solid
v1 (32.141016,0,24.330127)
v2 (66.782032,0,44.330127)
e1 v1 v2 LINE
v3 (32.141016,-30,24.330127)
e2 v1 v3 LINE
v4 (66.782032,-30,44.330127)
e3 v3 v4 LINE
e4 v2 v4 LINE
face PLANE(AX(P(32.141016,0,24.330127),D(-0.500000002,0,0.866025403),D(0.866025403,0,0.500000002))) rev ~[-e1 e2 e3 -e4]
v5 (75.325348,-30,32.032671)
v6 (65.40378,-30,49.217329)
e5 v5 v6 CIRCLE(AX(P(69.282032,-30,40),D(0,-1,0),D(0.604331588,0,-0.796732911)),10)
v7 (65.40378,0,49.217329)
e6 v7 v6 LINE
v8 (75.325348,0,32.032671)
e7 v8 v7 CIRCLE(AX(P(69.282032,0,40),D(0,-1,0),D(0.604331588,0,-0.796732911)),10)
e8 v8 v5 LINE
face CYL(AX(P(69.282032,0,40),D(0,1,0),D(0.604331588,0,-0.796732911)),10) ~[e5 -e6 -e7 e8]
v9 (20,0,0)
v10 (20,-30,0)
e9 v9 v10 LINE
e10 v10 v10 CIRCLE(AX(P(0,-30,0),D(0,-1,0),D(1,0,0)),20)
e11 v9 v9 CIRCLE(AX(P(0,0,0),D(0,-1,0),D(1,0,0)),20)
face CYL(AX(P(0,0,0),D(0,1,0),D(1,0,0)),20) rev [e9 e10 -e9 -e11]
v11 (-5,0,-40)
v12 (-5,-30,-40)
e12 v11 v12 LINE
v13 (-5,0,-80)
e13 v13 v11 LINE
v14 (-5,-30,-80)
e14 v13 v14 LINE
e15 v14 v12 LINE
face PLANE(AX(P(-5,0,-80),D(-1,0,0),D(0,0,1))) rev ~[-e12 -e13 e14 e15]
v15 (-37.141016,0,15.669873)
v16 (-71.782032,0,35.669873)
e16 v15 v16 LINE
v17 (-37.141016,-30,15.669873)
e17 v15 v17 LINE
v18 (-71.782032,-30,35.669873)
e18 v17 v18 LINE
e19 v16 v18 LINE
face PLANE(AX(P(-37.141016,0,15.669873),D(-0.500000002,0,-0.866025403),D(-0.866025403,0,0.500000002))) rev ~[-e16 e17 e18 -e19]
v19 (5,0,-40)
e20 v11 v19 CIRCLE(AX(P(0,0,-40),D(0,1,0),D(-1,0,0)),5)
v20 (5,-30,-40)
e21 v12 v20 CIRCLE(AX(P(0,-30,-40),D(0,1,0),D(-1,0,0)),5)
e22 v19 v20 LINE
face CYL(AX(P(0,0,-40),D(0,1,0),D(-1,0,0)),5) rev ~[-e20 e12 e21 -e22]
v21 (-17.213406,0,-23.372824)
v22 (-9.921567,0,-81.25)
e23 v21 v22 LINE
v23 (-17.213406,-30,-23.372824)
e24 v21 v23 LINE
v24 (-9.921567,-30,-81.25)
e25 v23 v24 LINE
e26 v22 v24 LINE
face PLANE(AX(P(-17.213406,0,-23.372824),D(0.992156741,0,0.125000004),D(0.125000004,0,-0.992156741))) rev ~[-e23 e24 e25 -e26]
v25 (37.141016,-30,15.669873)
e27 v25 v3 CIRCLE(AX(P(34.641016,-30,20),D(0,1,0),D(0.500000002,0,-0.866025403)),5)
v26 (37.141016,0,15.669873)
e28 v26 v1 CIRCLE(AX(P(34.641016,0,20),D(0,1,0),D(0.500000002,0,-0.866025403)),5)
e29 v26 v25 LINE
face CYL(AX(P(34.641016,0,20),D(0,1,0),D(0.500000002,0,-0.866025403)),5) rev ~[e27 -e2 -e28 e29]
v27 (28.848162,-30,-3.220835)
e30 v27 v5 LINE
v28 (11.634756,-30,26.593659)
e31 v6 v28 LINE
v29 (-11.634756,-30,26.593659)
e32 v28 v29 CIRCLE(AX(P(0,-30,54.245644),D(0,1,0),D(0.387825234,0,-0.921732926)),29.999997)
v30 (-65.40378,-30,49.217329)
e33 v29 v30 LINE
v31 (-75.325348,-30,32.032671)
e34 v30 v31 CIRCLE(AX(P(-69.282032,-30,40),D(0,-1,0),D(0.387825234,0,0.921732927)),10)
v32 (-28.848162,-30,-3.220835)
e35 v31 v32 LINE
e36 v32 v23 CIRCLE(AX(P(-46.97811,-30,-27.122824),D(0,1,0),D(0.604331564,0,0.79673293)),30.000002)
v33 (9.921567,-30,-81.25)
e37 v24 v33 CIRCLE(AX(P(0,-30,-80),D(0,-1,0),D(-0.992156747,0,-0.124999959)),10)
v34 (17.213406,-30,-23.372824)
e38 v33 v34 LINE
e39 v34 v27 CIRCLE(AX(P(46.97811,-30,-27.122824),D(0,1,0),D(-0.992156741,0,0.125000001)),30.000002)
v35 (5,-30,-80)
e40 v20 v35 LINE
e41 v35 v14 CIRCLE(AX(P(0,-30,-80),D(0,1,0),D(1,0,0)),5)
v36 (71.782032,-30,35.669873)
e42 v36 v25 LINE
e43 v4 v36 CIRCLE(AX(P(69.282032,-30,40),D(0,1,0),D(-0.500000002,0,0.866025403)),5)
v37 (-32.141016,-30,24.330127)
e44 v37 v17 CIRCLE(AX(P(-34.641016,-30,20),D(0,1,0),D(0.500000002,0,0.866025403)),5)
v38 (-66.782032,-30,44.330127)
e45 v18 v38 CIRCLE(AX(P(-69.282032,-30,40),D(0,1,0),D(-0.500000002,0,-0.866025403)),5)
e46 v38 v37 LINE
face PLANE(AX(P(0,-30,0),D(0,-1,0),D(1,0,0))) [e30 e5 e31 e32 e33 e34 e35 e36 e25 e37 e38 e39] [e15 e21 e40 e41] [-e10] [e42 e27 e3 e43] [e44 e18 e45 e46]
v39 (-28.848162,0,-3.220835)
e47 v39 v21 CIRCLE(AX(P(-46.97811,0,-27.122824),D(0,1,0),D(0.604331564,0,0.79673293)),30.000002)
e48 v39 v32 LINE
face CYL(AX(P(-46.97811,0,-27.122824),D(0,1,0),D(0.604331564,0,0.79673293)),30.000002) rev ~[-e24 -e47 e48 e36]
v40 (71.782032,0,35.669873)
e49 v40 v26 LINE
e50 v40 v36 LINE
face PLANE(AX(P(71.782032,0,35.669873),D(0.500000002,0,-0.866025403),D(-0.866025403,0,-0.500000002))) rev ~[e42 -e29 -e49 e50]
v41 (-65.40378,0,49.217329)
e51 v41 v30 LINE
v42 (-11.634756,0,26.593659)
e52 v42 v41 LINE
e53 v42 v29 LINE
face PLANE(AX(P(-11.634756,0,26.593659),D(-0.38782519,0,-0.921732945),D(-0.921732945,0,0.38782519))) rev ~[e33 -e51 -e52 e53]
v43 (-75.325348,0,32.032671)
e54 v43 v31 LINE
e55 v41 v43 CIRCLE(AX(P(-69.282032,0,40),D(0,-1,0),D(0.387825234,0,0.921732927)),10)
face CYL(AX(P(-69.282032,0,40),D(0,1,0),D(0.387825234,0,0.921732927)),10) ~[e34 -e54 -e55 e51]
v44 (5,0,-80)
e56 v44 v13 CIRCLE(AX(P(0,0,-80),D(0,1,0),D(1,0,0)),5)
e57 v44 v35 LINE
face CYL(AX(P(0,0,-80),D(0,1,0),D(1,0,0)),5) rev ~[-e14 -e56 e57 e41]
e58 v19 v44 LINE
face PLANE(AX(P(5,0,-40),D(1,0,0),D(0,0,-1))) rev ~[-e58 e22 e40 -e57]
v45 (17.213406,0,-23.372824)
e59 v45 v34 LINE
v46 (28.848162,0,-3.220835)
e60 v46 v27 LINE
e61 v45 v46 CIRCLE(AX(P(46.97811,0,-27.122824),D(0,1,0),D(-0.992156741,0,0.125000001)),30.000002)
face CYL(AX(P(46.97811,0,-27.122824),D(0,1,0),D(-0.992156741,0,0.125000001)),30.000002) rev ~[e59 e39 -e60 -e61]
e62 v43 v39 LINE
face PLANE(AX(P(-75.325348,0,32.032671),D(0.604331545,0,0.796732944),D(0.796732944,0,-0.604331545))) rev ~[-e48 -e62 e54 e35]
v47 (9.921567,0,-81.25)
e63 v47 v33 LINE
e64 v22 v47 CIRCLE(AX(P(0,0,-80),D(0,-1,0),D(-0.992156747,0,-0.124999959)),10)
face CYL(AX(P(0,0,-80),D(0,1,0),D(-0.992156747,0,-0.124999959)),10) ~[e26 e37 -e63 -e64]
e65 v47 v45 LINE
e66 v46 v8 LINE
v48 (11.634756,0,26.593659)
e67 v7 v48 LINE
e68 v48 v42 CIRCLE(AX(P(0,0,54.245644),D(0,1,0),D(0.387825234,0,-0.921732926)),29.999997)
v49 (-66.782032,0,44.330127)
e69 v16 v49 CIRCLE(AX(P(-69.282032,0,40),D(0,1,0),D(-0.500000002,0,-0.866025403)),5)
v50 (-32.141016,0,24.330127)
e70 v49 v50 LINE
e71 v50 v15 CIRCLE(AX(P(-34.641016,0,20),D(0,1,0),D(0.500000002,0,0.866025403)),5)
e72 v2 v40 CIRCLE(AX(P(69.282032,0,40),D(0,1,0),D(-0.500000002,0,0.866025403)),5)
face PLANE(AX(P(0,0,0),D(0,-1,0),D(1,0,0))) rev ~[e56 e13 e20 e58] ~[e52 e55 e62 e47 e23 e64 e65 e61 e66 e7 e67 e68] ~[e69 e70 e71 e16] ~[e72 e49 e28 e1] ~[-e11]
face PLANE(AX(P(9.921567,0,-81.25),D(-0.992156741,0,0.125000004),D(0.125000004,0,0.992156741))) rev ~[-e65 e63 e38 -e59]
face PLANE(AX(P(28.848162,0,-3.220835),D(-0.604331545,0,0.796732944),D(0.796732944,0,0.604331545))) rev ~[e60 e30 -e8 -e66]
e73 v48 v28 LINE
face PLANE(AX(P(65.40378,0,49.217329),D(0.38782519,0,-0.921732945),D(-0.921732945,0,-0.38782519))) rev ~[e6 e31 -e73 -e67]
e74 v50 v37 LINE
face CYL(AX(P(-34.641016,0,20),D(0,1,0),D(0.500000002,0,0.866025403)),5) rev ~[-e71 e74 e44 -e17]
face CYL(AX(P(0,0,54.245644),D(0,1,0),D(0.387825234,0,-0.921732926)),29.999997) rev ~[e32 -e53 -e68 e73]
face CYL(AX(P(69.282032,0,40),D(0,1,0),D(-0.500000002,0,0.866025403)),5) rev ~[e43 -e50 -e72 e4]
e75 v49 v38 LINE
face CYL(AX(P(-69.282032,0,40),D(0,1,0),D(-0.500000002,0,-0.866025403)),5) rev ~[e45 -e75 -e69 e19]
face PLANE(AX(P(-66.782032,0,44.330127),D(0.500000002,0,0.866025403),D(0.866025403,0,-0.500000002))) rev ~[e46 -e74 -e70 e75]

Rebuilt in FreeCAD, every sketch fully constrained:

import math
import FreeCAD as App
import Part
import Sketcher
Q = App.Units.Quantity

doc = App.newDocument("Part")
params = doc.addObject("Spreadsheet::Sheet", "Params")
for row, (alias, value) in enumerate([
    ("sketch1_diameter", "40 mm"),
    ("sketch1_radius", "10 mm"),
    ("sketch1_radius2", "30.000002 mm"),
    ("sketch1_radius3", "5 mm"),
    ("sketch1_height", "40 mm"),
    ("pad1_length", "30 mm"),
], start=1):
    params.set(f"A{row}", alias)
    params.set(f"B{row}", "=" + value)
    params.setAlias(f"B{row}", alias)

body = doc.addObject("PartDesign::Body", "Body")

# Sketch on XZ plane
sketch1 = body.newObject("Sketcher::SketchObject", "Sketch")
sketch1.AttachmentSupport = (doc.getObject("XZ_Plane"), [""])
sketch1.MapMode = "FlatFace"
sketch1.addGeometry([
    Part.LineSegment(App.Vector(-11.6, 26.6, 0), App.Vector(-65.4, 49.2, 0)),  # 0
    Part.ArcOfCircle(Part.Circle(App.Vector(-69.3, 40, 0), App.Vector(0, 0, 1), 10), math.radians(67), math.radians(233)),  # 1
    Part.LineSegment(App.Vector(-75.3, 32, 0), App.Vector(-28.8, -3.2, 0)),  # 2
    Part.ArcOfCircle(Part.Circle(App.Vector(-47, -27.1, 0), App.Vector(0, 0, 1), 30), math.radians(7), math.radians(53)),  # 3
    Part.LineSegment(App.Vector(-17.2, -23.4, 0), App.Vector(-9.9, -81.2, 0)),  # 4
    Part.ArcOfCircle(Part.Circle(App.Vector(0, -80, 0), App.Vector(0, 0, 1), 10), math.radians(-173), math.radians(-7)),  # 5
    Part.LineSegment(App.Vector(9.9, -81.2, 0), App.Vector(17.2, -23.4, 0)),  # 6
    Part.ArcOfCircle(Part.Circle(App.Vector(47, -27.1, 0), App.Vector(0, 0, 1), 30), math.radians(127), math.radians(173)),  # 7
    Part.LineSegment(App.Vector(28.8, -3.2, 0), App.Vector(75.3, 32, 0)),  # 8
    Part.ArcOfCircle(Part.Circle(App.Vector(69.3, 40, 0), App.Vector(0, 0, 1), 10), math.radians(-53), math.radians(113)),  # 9
    Part.LineSegment(App.Vector(65.4, 49.2, 0), App.Vector(11.6, 26.6, 0)),  # 10
    Part.ArcOfCircle(Part.Circle(App.Vector(0, 54.2, 0), App.Vector(0, 0, 1), 30), math.radians(-113), math.radians(-67)),  # 11
    Part.LineSegment(App.Vector(5, -40, 0), App.Vector(5, -80, 0)),  # 12
    Part.ArcOfCircle(Part.Circle(App.Vector(0, -80, 0), App.Vector(0, 0, 1), 5), math.radians(180), math.radians(360)),  # 13
    Part.LineSegment(App.Vector(-5, -80, 0), App.Vector(-5, -40, 0)),  # 14
    Part.ArcOfCircle(Part.Circle(App.Vector(0, -40, 0), App.Vector(0, 0, 1), 5), math.radians(0), math.radians(180)),  # 15
    Part.Circle(App.Vector(0, 0, 0), App.Vector(0, 0, 1), 20),  # 16
    Part.LineSegment(App.Vector(-37.1, 15.7, 0), App.Vector(-71.8, 35.7, 0)),  # 17
    Part.ArcOfCircle(Part.Circle(App.Vector(-69.3, 40, 0), App.Vector(0, 0, 1), 5), math.radians(60), math.radians(240)),  # 18
    Part.LineSegment(App.Vector(-66.8, 44.3, 0), App.Vector(-32.1, 24.3, 0)),  # 19
    Part.ArcOfCircle(Part.Circle(App.Vector(-34.6, 20, 0), App.Vector(0, 0, 1), 5), math.radians(-120), math.radians(60)),  # 20
    Part.LineSegment(App.Vector(32.1, 24.3, 0), App.Vector(66.8, 44.3, 0)),  # 21
    Part.ArcOfCircle(Part.Circle(App.Vector(69.3, 40, 0), App.Vector(0, 0, 1), 5), math.radians(-60), math.radians(120)),  # 22
    Part.LineSegment(App.Vector(71.8, 35.7, 0), App.Vector(37.1, 15.7, 0)),  # 23
    Part.ArcOfCircle(Part.Circle(App.Vector(34.6, 20, 0), App.Vector(0, 0, 1), 5), math.radians(120), math.radians(300)),  # 24
], False)
sketch1.addConstraint([
    Sketcher.Constraint("Tangent", 0, 2, 1, 1),
    Sketcher.Constraint("Tangent", 1, 2, 2, 1),
    Sketcher.Constraint("Tangent", 2, 2, 3, 2),
    Sketcher.Constraint("Tangent", 3, 1, 4, 1),
    Sketcher.Constraint("Tangent", 4, 2, 5, 1),
    Sketcher.Constraint("Tangent", 5, 2, 6, 1),
    Sketcher.Constraint("Tangent", 6, 2, 7, 2),
    Sketcher.Constraint("Tangent", 7, 1, 8, 1),
    Sketcher.Constraint("Tangent", 8, 2, 9, 1),
    Sketcher.Constraint("Tangent", 9, 2, 10, 1),
    Sketcher.Constraint("Tangent", 10, 2, 11, 2),
    Sketcher.Constraint("Tangent", 11, 1, 0, 1),
    Sketcher.Constraint("Tangent", 12, 2, 13, 2),
    Sketcher.Constraint("Tangent", 13, 1, 14, 1),
    Sketcher.Constraint("Tangent", 14, 2, 15, 2),
    Sketcher.Constraint("Tangent", 15, 1, 12, 1),
    Sketcher.Constraint("Tangent", 17, 2, 18, 2),
    Sketcher.Constraint("Tangent", 18, 1, 19, 1),
    Sketcher.Constraint("Tangent", 19, 2, 20, 2),
    Sketcher.Constraint("Tangent", 20, 1, 17, 1),
    Sketcher.Constraint("Tangent", 21, 2, 22, 2),
    Sketcher.Constraint("Tangent", 22, 1, 23, 1),
    Sketcher.Constraint("Tangent", 23, 2, 24, 2),
    Sketcher.Constraint("Tangent", 24, 1, 21, 1),
    Sketcher.Constraint("Vertical", 12),
    Sketcher.Constraint("Vertical", 14),
    Sketcher.Constraint("Coincident", 16, 3, -1, 1),
    Sketcher.Constraint("Coincident", 13, 3, 5, 3),
    Sketcher.Constraint("Coincident", 18, 3, 1, 3),
    Sketcher.Constraint("Coincident", 22, 3, 9, 3),
    Sketcher.Constraint("Equal", 1, 5),
    Sketcher.Constraint("Equal", 3, 7),
    Sketcher.Constraint("Equal", 5, 9),
    Sketcher.Constraint("Equal", 15, 18),
    Sketcher.Constraint("Equal", 18, 20),
    Sketcher.Constraint("Equal", 20, 22),
    Sketcher.Constraint("Equal", 22, 24),
    Sketcher.Constraint("Symmetric", 3, 3, 7, 3, -2),
    Sketcher.Constraint("Symmetric", 1, 3, 9, 3, -2),
    Sketcher.Constraint("Symmetric", 20, 3, 24, 3, -2),
    Sketcher.Constraint("PointOnObject", 5, 3, -2),
    Sketcher.Constraint("PointOnObject", 11, 3, -2),
    Sketcher.Constraint("Equal", 0, 2),
    Sketcher.Constraint("Equal", 2, 4),
    Sketcher.Constraint("Diameter", 16, Q("40 mm")),
    Sketcher.Constraint("Radius", 1, Q("10 mm")),
    Sketcher.Constraint("Radius", 3, Q("30.000002 mm")),
    Sketcher.Constraint("Radius", 13, Q("5 mm")),
    Sketcher.Constraint("DistanceY", 12, 2, 12, 1, Q("40 mm")),
    Sketcher.Constraint("Angle", 17, Q("150 deg")),
    Sketcher.Constraint("Distance", 17, Q("40 mm")),
    Sketcher.Constraint("DistanceY", -1, 1, 1, 3, Q("40 mm")),
    Sketcher.Constraint("DistanceY", 5, 3, -1, 1, Q("80 mm")),
    Sketcher.Constraint("DistanceY", 4, 2, -1, 1, Q("81.25 mm")),
    Sketcher.Constraint("Radius", 11, Q("29.999997 mm")),
    Sketcher.Constraint("DistanceY", 18, 1, 0, 2, Q("4.887202 mm")),
])
sketch1.setExpression("Constraints[44]", "Params.sketch1_diameter")
sketch1.setExpression("Constraints[45]", "Params.sketch1_radius")
sketch1.setExpression("Constraints[46]", "Params.sketch1_radius2")
sketch1.setExpression("Constraints[47]", "Params.sketch1_radius3")
sketch1.setExpression("Constraints[48]", "Params.sketch1_height")
pad1 = body.newObject("PartDesign::Pad", "Pad")
pad1.Profile = sketch1
pad1.setExpression("Length", "Params.pad1_length")

doc.recompute()
